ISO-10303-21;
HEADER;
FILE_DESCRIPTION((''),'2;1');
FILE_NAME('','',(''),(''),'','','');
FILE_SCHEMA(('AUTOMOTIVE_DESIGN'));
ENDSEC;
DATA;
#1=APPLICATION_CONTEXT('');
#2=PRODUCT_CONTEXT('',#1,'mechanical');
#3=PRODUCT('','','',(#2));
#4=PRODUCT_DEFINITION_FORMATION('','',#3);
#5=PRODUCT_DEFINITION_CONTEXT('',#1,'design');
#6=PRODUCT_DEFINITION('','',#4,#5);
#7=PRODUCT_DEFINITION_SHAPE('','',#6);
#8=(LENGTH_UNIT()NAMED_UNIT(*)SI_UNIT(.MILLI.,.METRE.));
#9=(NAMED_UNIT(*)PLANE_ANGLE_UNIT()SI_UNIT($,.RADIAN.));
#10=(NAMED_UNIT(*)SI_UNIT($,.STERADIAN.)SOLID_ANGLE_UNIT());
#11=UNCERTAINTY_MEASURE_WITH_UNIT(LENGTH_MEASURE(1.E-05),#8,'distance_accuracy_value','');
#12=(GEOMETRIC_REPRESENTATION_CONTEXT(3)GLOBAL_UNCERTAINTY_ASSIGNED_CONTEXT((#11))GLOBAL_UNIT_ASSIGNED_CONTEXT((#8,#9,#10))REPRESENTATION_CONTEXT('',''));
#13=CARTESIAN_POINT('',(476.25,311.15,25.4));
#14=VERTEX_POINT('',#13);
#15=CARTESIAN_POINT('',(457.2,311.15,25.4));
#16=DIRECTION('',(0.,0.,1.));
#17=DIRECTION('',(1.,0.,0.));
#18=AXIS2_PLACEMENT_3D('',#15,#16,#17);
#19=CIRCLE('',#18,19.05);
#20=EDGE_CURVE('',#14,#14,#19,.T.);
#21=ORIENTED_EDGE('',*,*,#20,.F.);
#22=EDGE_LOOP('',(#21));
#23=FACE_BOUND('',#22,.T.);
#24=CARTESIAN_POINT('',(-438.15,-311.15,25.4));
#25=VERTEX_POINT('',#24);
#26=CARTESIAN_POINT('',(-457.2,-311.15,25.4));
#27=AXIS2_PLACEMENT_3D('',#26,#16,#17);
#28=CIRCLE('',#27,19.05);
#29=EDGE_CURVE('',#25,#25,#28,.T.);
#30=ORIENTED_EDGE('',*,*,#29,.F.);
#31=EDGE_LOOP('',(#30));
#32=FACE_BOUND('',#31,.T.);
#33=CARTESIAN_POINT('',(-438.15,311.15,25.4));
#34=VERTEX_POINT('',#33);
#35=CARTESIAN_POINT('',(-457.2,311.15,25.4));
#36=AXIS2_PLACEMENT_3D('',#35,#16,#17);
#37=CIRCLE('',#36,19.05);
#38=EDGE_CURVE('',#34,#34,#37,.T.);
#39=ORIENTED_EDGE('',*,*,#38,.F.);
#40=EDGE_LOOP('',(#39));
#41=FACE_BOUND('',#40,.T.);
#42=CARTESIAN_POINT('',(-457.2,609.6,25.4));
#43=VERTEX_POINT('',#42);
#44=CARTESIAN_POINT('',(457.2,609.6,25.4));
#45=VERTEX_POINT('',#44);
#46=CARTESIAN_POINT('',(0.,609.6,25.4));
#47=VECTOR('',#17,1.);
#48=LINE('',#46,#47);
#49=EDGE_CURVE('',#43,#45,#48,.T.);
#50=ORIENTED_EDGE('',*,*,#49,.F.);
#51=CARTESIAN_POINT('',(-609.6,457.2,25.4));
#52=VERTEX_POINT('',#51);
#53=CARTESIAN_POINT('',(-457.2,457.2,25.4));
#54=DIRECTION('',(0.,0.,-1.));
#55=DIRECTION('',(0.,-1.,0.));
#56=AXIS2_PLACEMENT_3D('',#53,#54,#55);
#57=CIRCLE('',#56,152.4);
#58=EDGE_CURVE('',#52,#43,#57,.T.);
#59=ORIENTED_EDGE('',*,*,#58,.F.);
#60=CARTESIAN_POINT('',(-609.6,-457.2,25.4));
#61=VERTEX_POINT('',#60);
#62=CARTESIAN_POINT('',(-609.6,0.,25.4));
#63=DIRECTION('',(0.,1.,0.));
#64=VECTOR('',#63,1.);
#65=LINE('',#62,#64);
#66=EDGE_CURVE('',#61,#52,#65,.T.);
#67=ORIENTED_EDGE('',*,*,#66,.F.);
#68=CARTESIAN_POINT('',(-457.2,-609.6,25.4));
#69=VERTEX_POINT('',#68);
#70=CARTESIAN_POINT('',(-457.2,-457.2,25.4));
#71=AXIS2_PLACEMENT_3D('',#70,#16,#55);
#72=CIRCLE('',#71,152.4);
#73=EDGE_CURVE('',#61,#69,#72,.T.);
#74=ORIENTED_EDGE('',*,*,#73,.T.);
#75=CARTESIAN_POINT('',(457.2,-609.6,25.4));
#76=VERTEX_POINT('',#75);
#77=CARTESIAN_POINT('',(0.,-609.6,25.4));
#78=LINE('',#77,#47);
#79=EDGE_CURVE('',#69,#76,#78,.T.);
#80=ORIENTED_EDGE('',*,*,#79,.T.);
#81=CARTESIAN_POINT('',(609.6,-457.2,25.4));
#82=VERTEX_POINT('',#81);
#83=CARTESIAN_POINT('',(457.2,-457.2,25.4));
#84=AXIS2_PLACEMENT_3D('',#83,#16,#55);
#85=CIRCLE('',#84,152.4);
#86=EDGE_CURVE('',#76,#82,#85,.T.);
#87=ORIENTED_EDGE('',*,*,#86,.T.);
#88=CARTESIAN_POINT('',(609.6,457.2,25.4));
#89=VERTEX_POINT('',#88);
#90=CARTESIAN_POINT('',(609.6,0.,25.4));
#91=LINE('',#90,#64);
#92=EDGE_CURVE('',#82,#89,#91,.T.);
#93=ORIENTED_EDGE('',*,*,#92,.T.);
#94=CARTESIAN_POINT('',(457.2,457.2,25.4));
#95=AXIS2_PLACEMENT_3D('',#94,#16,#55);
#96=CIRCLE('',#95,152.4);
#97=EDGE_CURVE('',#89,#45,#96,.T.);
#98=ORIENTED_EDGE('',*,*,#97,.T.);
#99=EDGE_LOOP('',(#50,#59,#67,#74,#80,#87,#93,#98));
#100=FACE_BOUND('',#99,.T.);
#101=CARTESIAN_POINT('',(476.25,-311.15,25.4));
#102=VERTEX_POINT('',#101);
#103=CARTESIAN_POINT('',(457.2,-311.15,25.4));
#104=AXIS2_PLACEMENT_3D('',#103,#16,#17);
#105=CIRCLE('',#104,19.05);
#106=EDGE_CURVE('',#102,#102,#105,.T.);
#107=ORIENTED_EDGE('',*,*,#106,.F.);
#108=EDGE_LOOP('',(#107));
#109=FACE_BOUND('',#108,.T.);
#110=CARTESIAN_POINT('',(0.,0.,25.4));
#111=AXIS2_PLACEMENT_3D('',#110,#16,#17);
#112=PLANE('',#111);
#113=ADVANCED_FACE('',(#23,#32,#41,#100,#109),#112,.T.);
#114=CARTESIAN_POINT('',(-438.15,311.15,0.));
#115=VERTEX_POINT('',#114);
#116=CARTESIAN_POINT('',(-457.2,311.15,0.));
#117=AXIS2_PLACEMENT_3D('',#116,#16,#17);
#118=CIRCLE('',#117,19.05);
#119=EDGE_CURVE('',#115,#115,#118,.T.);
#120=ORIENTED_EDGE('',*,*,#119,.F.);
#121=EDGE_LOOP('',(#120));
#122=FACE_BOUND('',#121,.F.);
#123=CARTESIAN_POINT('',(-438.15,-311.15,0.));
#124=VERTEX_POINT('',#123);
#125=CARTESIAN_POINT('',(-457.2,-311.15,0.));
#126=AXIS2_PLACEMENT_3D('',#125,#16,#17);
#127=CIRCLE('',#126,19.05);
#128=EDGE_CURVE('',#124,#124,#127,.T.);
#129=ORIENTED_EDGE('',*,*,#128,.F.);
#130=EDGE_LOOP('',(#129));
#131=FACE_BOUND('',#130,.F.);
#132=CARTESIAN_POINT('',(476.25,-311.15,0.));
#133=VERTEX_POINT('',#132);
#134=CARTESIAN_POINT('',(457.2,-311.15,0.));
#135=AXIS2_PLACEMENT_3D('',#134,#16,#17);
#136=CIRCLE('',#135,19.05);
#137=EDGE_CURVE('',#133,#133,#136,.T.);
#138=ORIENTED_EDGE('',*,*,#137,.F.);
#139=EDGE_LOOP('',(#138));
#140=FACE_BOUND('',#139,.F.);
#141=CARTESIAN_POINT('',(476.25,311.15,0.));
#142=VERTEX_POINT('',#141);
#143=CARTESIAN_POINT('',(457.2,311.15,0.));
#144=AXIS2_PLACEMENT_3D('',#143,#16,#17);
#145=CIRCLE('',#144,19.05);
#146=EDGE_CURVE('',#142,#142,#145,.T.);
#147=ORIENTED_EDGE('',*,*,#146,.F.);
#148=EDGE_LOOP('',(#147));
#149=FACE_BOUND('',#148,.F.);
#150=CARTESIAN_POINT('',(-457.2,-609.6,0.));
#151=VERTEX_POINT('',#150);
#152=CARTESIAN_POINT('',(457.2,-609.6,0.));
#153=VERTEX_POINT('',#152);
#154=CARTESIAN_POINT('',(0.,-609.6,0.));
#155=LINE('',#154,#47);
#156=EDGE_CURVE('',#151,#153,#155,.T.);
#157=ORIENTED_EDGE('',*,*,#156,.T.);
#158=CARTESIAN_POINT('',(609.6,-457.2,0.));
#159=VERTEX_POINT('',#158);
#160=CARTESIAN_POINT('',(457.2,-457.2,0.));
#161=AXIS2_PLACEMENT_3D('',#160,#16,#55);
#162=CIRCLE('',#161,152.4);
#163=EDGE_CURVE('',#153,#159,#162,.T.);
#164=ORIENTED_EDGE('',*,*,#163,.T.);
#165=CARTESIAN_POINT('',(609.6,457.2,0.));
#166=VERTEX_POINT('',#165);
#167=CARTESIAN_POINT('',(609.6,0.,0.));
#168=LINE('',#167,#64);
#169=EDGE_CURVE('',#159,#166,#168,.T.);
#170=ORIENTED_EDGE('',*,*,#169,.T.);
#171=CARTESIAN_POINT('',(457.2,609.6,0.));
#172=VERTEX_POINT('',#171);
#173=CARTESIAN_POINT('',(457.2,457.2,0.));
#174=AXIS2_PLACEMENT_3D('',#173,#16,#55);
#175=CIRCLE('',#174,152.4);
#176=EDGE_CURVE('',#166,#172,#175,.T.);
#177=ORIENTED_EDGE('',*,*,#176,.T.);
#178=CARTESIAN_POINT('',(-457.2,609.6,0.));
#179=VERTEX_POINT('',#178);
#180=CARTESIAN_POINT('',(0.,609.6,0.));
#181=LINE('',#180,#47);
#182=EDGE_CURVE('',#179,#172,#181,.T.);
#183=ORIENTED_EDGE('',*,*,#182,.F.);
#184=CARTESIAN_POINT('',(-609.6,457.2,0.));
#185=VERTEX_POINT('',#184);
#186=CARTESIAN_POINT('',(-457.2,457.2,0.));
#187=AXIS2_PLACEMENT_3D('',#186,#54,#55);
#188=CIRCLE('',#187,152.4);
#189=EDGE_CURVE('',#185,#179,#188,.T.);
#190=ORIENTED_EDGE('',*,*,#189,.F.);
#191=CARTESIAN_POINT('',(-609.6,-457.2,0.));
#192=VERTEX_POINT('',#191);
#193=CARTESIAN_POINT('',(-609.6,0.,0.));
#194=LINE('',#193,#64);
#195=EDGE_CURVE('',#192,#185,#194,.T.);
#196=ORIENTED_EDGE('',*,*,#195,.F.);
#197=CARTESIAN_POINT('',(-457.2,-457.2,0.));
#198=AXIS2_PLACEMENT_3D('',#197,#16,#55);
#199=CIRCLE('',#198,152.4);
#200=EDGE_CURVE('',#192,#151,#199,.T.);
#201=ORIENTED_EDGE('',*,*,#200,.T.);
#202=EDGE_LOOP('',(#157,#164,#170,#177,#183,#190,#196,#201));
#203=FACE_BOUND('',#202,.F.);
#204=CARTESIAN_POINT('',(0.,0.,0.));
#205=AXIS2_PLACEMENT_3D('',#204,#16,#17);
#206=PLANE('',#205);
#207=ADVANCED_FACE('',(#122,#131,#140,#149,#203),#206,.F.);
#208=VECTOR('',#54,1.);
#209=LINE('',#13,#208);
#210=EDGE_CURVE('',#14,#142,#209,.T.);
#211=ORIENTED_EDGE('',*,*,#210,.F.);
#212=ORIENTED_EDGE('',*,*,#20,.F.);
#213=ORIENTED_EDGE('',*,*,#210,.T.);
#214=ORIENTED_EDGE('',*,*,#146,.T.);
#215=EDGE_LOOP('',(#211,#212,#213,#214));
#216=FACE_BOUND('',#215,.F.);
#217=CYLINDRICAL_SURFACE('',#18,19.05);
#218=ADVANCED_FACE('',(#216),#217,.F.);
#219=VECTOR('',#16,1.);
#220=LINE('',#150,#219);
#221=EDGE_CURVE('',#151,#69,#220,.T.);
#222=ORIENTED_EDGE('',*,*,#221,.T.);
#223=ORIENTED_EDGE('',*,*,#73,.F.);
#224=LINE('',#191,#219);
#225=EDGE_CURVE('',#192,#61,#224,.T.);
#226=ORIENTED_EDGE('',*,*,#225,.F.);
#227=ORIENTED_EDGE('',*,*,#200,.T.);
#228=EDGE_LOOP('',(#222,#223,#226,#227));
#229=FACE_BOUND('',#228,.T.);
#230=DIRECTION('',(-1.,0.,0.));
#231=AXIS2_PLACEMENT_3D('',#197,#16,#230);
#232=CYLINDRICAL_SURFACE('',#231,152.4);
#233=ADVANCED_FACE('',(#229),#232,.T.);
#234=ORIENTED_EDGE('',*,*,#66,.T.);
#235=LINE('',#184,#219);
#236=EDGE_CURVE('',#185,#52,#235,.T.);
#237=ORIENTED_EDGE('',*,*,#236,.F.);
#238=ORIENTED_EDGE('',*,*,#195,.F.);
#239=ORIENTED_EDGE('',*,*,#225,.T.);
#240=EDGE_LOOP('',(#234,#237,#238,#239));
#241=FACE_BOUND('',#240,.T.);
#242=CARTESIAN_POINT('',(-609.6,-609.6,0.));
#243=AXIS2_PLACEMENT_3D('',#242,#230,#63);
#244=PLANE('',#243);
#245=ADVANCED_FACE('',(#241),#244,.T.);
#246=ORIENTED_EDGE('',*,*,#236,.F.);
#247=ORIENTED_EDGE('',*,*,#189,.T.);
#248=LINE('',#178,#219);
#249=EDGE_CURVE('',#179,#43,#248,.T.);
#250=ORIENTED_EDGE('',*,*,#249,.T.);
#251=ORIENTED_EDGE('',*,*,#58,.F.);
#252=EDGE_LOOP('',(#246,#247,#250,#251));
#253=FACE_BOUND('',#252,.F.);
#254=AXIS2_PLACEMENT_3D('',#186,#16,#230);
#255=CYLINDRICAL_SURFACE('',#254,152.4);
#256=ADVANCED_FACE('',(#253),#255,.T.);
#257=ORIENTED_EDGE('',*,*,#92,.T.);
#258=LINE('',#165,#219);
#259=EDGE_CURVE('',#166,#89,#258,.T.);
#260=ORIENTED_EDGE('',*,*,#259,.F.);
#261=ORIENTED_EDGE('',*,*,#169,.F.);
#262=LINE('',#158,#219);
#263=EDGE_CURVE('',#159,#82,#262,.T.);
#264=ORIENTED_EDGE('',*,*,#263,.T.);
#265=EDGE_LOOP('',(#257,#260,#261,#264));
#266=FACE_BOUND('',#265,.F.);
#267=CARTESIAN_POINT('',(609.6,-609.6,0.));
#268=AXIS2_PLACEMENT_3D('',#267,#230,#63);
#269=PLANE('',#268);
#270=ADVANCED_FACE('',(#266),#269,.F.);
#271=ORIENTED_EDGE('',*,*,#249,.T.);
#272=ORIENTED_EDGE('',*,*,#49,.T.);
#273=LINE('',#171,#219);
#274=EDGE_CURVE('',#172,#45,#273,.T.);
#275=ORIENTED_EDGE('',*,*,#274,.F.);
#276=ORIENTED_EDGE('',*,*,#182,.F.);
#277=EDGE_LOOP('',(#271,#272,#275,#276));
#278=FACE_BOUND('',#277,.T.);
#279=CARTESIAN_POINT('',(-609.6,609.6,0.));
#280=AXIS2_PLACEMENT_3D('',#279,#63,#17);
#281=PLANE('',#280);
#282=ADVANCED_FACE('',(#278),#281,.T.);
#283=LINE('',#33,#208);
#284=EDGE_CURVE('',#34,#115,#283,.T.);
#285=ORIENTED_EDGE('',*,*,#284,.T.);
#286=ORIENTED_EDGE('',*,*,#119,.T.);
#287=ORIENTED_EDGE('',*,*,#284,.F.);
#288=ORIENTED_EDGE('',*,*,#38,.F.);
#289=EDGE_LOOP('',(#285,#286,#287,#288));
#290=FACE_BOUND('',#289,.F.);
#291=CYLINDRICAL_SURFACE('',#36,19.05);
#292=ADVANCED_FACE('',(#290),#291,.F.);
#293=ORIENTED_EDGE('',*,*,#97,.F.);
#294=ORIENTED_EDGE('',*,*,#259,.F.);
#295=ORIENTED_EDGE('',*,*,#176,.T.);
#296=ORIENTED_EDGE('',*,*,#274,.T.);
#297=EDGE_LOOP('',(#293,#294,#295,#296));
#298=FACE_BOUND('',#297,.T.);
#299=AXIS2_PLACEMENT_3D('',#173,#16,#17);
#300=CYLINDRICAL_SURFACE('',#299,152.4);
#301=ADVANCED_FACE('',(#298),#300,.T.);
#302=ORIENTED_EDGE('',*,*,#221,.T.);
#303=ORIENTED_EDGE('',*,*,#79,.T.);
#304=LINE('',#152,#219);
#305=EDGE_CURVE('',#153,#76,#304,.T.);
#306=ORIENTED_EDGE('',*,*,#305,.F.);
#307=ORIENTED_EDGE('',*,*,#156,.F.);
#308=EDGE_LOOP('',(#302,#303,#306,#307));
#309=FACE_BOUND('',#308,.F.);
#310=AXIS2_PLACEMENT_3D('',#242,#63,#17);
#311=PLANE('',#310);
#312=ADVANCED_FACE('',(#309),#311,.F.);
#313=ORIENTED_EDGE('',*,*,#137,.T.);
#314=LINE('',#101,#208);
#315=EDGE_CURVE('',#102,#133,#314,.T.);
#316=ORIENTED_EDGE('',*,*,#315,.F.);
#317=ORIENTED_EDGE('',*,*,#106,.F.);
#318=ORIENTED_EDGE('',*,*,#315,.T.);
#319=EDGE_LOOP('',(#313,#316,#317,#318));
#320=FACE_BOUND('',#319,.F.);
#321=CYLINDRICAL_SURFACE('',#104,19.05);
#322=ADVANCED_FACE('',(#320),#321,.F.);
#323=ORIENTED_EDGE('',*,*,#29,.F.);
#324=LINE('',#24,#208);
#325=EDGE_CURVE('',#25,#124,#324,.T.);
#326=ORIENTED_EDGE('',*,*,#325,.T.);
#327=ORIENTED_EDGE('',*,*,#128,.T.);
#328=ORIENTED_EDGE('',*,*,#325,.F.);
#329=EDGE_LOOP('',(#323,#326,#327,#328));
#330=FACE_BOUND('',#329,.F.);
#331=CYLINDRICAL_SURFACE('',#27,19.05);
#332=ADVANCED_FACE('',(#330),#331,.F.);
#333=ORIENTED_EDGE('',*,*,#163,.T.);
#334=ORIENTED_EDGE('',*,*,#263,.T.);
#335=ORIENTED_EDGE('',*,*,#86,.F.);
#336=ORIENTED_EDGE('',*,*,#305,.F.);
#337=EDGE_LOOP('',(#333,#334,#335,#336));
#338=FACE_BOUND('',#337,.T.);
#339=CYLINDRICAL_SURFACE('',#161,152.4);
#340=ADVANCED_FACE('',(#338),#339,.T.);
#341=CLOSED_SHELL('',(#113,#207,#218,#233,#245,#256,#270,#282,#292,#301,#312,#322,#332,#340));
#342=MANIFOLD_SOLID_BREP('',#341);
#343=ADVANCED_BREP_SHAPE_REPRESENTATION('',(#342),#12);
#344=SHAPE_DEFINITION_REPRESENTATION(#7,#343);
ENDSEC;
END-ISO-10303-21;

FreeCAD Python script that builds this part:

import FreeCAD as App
import Part
import Sketcher
from FreeCAD import Vector
Q = App.Units.Quantity


def edges_at(feature, points):
    """Names of the edges that pass closest to the given points."""
    edges = feature.Shape.Edges
    near = lambda p: min(range(len(edges)), key=lambda i: edges[i].distToShape(Part.Vertex(*p))[0])
    return sorted({f"Edge{near(p) + 1}" for p in points})


def add_polygon(sketch, points):
    """Adds a closed chain of lines whose ends are joined by coincident constraints."""
    first, n = sketch.GeometryCount, len(points)
    for a, b in zip(points, points[1:] + points[:1]):
        sketch.addGeometry(Part.LineSegment(App.Vector(*a, 0), App.Vector(*b, 0)), False)
    for i in range(n):
        sketch.addConstraint(Sketcher.Constraint("Coincident", first + i, 2, first + (i + 1) % n, 1))

doc = App.newDocument("Part")
body = doc.addObject("PartDesign::Body", "Body")

sketch1 = body.newObject("Sketcher::SketchObject", "Sketch")
sketch1.AttachmentSupport = (doc.getObject("XY_Plane"), [""])
sketch1.MapMode = "FlatFace"
add_polygon(sketch1, [(-610, 610), (-610, -610), (610, -610), (610, 610)])
sketch1.addConstraint([
    Sketcher.Constraint("Vertical", 0),
    Sketcher.Constraint("Horizontal", 1),
    Sketcher.Constraint("Vertical", 2),
    Sketcher.Constraint("Horizontal", 3),
    Sketcher.Constraint("Symmetric", 0, 2, 2, 2, -1, 1),
    Sketcher.Constraint("Equal", 3, 0),
    Sketcher.Constraint("DistanceX", 1, 1, 1, 2, Q("48 in")),
])
pad1 = body.newObject("PartDesign::Pad", "Pad")
pad1.Profile = sketch1
pad1.Length = Q("1 in")
doc.recompute()

fillet = body.newObject("PartDesign::Fillet", "Fillet")
fillet.Base = (pad1, edges_at(pad1, [
    (-609.6, -609.6, 12.7),
    (609.6, -609.6, 12.7),
    (609.6, 609.6, 12.7),
    (-609.6, 609.6, 12.7),
]))
fillet.Radius = Q("6 in")

sketch2 = body.newObject("Sketcher::SketchObject", "Sketch001")
sketch2.AttachmentSupport = (doc.getObject("XY_Plane"), [""])
sketch2.MapMode = "FlatFace"
sketch2.AttachmentOffset = App.Placement(Vector(0, 0, 1 * 25.4), App.Rotation())
sketch2.addGeometry([
    Part.Circle(Vector(-457, 311, 0), Vector(0, 0, 1), 19),
    Part.Circle(Vector(457, 311, 0), Vector(0, 0, 1), 19),
    Part.Circle(Vector(457, -311, 0), Vector(0, 0, 1), 19),
    Part.Circle(Vector(-457, -311, 0), Vector(0, 0, 1), 19),
], False)
sketch2.addConstraint([
    Sketcher.Constraint("Equal", 0, 1),
    Sketcher.Constraint("Equal", 1, 2),
    Sketcher.Constraint("Equal", 2, 3),
    Sketcher.Constraint("Symmetric", 0, 3, 2, 3, -1, 1),
    Sketcher.Constraint("Symmetric", 1, 3, 3, 3, -1, 1),
    Sketcher.Constraint("Symmetric", 0, 3, 1, 3, -2),
    Sketcher.Constraint("Diameter", 0, Q("1.5 in")),
    Sketcher.Constraint("DistanceX", 0, 3, -1, 1, Q("18 in")),
    Sketcher.Constraint("DistanceY", 2, 3, 1, 3, Q("24.5 in")),
])
pocket1 = body.newObject("PartDesign::Pocket", "Pocket")
pocket1.Profile = sketch2
pocket1.Length = Q("1 in")

doc.recompute()
